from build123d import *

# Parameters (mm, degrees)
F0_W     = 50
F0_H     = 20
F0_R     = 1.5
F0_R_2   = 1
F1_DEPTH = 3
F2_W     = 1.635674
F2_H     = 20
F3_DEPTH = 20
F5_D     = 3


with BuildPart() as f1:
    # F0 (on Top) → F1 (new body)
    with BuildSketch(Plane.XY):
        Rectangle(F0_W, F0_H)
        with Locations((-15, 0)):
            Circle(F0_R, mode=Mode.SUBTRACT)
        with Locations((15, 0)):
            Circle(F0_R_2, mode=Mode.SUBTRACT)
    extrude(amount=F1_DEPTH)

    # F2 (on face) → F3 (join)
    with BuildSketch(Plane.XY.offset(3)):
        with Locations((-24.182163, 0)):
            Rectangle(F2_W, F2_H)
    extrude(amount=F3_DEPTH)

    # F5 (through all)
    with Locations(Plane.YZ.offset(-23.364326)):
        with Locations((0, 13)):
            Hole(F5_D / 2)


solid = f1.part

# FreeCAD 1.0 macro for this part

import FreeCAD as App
import Part
import Sketcher

V = App.Vector
Q = App.Units.Quantity


def add_polygon(sketch, points):
    """Adds a closed chain of lines whose ends are joined by coincident constraints."""
    first, n = sketch.GeometryCount, len(points)
    for a, b in zip(points, points[1:] + points[:1]):
        sketch.addGeometry(Part.LineSegment(App.Vector(*a, 0), App.Vector(*b, 0)), False)
    for i in range(n):
        sketch.addConstraint(Sketcher.Constraint("Coincident", first + i, 2, first + (i + 1) % n, 1))

doc = App.newDocument("Part")
body = doc.addObject("PartDesign::Body", "Body")

sketch1 = body.newObject("Sketcher::SketchObject", "Sketch")
sketch1.AttachmentSupport = (doc.getObject("XY_Plane"), [""])
sketch1.MapMode = "FlatFace"
add_polygon(sketch1, [(-25, 10), (-25, -10), (25, -10), (25, 10)])
sketch1.addGeometry(Part.Circle(V(-15, 0, 0), V(0, 0, 1), 1.5), False)
sketch1.addGeometry(Part.Circle(V(15, 0, 0), V(0, 0, 1), 1), False)
sketch1.addConstraint(Sketcher.Constraint("Vertical", 0))
sketch1.addConstraint(Sketcher.Constraint("Horizontal", 1))
sketch1.addConstraint(Sketcher.Constraint("Vertical", 2))
sketch1.addConstraint(Sketcher.Constraint("Horizontal", 3))
sketch1.addConstraint(Sketcher.Constraint("Symmetric", 4, 3, 5, 3, -1, 1))
sketch1.addConstraint(Sketcher.Constraint("Symmetric", 0, 2, 2, 2, -1, 1))
sketch1.addConstraint(Sketcher.Constraint("PointOnObject", 4, 3, -1))
sketch1.addConstraint(Sketcher.Constraint("Diameter", 4, Q("3 mm")))
sketch1.addConstraint(Sketcher.Constraint("Diameter", 5, Q("2 mm")))
sketch1.addConstraint(Sketcher.Constraint("DistanceX", 1, 1, 1, 2, Q("50 mm")))
sketch1.addConstraint(Sketcher.Constraint("DistanceY", 0, 2, 0, 1, Q("20 mm")))
sketch1.addConstraint(Sketcher.Constraint("DistanceX", 4, 3, -1, 1, Q("15 mm")))
pad1 = body.newObject("PartDesign::Pad", "Pad")
pad1.Profile = sketch1
pad1.Length = 3

sketch2 = body.newObject("Sketcher::SketchObject", "Sketch001")
sketch2.AttachmentSupport = (doc.getObject("XY_Plane"), [""])
sketch2.MapMode = "FlatFace"
sketch2.AttachmentOffset = App.Placement(V(0, 0, 3), App.Rotation())
add_polygon(sketch2, [(-25, 10), (-25, -10), (-23.364326, -10), (-23.364326, 10)])
sketch2.addConstraint(Sketcher.Constraint("Vertical", 0))
sketch2.addConstraint(Sketcher.Constraint("Horizontal", 1))
sketch2.addConstraint(Sketcher.Constraint("Vertical", 2))
sketch2.addConstraint(Sketcher.Constraint("Horizontal", 3))
sketch2.addConstraint(Sketcher.Constraint("DistanceY", 0, 2, 0, 1, Q("20 mm")))
sketch2.addConstraint(Sketcher.Constraint("DistanceX", 0, 2, -1, 1, Q("25 mm")))
sketch2.addConstraint(Sketcher.Constraint("DistanceY", 0, 2, -1, 1, Q("10 mm")))
sketch2.addConstraint(Sketcher.Constraint("DistanceX", 1, 1, 1, 2, Q("1.635674 mm")))
pad2 = body.newObject("PartDesign::Pad", "Pad001")
pad2.Profile = sketch2
pad2.Length = 20

sketch3 = body.newObject("Sketcher::SketchObject", "Sketch002")
sketch3.AttachmentSupport = (doc.getObject("YZ_Plane"), [""])
sketch3.MapMode = "FlatFace"
sketch3.AttachmentOffset = App.Placement(V(0, 0, -23.364326), App.Rotation())
sketch3.addGeometry(Part.Circle(V(0, 13, 0), V(0, 0, 1), 1.5), False)
sketch3.addConstraint(Sketcher.Constraint("PointOnObject", 0, 3, -2))
sketch3.addConstraint(Sketcher.Constraint("Diameter", 0, Q("3 mm")))
sketch3.addConstraint(Sketcher.Constraint("DistanceY", -1, 1, 0, 3, Q("13 mm")))
doc.recompute()
hole = body.newObject("PartDesign::Hole", "Hole")
hole.Profile = sketch3
hole.ThreadType = "None"
hole.Diameter = 3
hole.DepthType = "ThroughAll"

doc.recompute()
